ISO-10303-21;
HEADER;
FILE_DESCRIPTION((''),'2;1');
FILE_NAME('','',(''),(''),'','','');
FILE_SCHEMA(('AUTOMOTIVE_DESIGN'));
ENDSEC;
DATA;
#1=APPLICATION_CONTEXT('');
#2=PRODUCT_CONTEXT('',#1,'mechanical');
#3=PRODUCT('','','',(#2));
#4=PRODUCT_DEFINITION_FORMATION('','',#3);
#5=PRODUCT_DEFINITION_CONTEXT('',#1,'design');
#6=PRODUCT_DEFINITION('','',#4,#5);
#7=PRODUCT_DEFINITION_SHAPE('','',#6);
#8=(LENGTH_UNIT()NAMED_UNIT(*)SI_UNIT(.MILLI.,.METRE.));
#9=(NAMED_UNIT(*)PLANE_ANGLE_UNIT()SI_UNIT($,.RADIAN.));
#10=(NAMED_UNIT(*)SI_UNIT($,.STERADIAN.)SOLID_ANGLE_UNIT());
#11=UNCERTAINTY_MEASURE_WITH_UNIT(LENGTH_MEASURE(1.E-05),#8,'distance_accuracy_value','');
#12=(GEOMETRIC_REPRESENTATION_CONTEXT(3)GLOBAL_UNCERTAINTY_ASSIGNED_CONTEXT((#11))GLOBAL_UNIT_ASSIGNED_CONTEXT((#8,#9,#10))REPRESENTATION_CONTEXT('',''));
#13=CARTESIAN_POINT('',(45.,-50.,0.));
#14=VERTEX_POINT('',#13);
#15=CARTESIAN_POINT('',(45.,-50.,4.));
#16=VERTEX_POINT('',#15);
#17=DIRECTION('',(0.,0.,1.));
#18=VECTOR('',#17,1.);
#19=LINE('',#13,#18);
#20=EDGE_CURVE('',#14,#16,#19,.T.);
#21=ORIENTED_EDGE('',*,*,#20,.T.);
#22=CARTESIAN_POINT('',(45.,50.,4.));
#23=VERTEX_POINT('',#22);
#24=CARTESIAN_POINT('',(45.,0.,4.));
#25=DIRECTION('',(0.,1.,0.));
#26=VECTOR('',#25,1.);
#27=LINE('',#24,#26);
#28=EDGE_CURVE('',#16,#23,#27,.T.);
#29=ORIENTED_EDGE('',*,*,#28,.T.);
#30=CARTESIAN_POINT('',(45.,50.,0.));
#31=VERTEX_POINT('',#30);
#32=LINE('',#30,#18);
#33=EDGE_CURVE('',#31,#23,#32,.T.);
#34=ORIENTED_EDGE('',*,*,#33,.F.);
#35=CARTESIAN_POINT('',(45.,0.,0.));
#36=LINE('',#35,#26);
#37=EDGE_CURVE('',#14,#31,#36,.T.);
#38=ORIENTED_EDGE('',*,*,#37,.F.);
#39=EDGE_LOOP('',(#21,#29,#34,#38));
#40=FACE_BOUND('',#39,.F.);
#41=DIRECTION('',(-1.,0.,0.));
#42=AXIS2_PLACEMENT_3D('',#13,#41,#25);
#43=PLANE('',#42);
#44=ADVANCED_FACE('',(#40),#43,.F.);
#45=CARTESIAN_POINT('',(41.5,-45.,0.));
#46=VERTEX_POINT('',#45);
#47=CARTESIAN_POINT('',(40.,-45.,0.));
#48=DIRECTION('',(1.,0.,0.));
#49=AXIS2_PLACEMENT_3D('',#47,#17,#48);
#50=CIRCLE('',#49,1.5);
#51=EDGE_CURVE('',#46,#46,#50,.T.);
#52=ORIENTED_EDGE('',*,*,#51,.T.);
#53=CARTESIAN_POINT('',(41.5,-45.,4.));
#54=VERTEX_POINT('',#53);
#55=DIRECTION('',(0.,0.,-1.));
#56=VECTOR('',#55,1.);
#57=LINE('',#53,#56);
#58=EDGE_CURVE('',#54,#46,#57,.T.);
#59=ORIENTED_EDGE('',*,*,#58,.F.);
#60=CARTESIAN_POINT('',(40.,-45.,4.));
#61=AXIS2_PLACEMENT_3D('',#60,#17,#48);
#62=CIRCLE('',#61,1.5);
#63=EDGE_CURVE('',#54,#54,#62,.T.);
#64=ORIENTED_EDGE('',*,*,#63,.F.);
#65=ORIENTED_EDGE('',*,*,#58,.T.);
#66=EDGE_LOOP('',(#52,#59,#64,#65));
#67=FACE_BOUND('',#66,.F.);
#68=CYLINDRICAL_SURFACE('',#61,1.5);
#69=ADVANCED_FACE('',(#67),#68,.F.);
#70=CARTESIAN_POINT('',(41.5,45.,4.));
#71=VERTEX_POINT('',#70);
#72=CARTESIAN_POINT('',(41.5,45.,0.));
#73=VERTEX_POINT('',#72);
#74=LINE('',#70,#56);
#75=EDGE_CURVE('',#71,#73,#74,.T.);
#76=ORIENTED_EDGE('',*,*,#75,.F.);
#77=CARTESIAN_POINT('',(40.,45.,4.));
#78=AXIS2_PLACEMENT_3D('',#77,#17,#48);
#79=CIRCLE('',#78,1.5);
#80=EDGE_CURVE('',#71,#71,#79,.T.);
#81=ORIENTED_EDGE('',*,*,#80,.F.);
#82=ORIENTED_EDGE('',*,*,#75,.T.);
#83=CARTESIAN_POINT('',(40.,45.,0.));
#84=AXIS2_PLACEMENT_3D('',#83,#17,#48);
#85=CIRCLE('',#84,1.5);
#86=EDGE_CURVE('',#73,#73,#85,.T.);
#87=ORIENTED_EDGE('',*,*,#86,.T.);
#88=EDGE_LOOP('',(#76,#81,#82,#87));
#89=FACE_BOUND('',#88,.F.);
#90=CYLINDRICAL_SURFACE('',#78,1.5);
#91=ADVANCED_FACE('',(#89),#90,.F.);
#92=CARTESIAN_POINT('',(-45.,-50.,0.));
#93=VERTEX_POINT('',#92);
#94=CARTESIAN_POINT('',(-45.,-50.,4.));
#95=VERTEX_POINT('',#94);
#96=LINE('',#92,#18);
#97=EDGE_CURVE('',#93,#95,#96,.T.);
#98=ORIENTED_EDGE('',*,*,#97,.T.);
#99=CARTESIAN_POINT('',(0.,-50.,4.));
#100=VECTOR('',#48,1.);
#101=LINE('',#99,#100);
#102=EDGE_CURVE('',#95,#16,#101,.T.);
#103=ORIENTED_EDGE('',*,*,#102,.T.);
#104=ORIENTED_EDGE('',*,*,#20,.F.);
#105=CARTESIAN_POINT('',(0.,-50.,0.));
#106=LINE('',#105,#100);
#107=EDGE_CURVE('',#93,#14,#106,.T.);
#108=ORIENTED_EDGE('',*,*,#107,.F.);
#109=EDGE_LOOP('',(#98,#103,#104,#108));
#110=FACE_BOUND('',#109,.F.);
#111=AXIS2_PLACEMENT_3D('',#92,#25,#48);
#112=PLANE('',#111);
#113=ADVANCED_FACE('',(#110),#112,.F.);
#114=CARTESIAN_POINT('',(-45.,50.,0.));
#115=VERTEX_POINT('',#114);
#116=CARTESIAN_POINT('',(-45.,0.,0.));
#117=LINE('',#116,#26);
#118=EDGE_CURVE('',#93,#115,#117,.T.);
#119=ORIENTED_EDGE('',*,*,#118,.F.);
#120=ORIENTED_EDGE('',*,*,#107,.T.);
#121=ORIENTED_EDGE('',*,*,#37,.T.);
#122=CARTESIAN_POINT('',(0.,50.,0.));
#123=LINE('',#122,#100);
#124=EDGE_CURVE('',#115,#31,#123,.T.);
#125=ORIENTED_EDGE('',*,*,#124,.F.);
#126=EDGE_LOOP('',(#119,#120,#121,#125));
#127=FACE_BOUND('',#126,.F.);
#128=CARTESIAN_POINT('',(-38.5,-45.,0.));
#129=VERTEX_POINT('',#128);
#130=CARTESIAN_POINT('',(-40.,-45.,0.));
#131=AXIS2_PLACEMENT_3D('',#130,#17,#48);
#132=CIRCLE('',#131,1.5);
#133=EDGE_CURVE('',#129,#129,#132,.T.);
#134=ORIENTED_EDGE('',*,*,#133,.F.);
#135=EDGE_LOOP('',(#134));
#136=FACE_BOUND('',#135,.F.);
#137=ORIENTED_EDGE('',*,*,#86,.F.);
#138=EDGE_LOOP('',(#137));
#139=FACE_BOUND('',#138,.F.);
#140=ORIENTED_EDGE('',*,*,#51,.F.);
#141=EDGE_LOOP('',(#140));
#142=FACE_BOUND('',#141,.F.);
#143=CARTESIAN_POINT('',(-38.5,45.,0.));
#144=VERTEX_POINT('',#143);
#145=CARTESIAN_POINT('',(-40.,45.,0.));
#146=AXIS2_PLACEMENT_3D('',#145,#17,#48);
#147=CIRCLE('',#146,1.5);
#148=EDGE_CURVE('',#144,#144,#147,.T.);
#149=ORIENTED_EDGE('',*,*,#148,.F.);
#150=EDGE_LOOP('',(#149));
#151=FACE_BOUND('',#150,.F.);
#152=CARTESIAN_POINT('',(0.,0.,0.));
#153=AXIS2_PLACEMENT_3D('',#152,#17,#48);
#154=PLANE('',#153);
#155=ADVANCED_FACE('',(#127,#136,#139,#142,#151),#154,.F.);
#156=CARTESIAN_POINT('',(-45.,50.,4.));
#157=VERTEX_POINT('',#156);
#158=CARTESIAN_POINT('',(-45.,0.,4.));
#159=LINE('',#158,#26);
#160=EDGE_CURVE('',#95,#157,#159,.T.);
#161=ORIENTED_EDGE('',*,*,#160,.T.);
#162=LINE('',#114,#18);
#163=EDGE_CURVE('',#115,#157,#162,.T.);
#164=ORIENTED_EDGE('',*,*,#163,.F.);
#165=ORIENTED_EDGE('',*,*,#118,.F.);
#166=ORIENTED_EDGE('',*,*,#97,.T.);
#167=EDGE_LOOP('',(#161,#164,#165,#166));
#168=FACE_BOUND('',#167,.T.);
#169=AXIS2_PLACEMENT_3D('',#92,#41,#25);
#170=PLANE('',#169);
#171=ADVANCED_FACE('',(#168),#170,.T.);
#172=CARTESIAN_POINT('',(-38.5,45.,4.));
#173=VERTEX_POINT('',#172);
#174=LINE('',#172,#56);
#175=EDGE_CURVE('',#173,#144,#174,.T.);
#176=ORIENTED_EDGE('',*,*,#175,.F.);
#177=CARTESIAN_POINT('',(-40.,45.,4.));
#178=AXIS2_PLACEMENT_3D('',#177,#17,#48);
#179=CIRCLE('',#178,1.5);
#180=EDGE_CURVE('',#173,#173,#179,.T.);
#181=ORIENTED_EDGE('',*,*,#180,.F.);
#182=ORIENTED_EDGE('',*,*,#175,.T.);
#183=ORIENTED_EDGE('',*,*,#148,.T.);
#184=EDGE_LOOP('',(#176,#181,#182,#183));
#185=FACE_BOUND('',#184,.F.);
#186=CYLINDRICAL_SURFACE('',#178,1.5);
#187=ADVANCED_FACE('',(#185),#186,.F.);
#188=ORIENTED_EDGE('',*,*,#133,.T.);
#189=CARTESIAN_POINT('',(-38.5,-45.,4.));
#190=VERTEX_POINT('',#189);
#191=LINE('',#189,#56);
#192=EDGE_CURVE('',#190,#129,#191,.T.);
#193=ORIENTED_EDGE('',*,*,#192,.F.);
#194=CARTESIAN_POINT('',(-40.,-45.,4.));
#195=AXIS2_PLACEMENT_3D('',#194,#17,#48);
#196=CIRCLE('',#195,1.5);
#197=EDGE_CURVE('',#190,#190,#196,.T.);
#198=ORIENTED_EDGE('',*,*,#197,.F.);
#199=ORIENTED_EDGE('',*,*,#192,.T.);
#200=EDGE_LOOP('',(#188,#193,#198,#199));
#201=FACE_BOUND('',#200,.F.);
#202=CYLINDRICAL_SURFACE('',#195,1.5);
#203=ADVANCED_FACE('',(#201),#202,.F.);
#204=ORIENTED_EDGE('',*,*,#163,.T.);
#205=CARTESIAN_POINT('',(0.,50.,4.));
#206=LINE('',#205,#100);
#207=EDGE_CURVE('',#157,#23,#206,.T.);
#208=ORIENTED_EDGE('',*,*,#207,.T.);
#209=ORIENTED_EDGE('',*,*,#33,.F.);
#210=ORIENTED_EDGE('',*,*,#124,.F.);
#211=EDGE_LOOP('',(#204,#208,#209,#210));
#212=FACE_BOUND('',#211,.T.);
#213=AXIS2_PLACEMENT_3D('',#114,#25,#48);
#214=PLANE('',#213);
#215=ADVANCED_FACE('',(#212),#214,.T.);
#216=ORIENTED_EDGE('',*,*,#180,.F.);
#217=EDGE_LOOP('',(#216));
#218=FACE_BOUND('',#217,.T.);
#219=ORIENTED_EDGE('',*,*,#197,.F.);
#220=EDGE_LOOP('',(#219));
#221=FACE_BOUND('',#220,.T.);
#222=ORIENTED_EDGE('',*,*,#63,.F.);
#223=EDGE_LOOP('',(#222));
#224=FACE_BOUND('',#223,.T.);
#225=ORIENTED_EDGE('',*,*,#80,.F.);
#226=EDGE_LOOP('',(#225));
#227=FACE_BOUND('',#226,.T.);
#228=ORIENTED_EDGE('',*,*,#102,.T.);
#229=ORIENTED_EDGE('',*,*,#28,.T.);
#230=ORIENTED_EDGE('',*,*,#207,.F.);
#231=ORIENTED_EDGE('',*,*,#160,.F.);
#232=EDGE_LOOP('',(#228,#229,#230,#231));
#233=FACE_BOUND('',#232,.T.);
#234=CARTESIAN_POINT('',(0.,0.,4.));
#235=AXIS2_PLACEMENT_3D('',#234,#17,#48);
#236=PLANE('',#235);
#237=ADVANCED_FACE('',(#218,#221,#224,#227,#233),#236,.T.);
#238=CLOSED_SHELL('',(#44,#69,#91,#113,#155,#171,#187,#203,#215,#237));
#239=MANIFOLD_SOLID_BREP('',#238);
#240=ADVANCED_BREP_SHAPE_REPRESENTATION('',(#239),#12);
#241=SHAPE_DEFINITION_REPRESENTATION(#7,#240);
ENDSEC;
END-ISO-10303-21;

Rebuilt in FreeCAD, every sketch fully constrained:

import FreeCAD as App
import Part
import Sketcher

doc = App.newDocument("Part")
body = doc.addObject("PartDesign::Body", "Body")

sketch1 = doc.addObject("Sketcher::SketchObject", "Sketch")
body.addObject(sketch1)
sketch1.AttachmentSupport = (doc.XY_Plane, [""])
sketch1.MapMode = "FlatFace"
sketch1.addGeometry(Part.LineSegment(App.Vector(-45, 50, 0), App.Vector(-45, -50, 0)), False)
sketch1.addGeometry(Part.LineSegment(App.Vector(-45, -50, 0), App.Vector(45, -50, 0)), False)
sketch1.addGeometry(Part.LineSegment(App.Vector(45, -50, 0), App.Vector(45, 50, 0)), False)
sketch1.addGeometry(Part.LineSegment(App.Vector(45, 50, 0), App.Vector(-45, 50, 0)), False)
sketch1.addConstraint(Sketcher.Constraint("Coincident", 0, 2, 1, 1))
sketch1.addConstraint(Sketcher.Constraint("Coincident", 1, 2, 2, 1))
sketch1.addConstraint(Sketcher.Constraint("Coincident", 2, 2, 3, 1))
sketch1.addConstraint(Sketcher.Constraint("Coincident", 3, 2, 0, 1))
sketch1.addConstraint(Sketcher.Constraint("Vertical", 0))
sketch1.addConstraint(Sketcher.Constraint("Horizontal", 1))
sketch1.addConstraint(Sketcher.Constraint("Vertical", 2))
sketch1.addConstraint(Sketcher.Constraint("Horizontal", 3))
sketch1.addConstraint(Sketcher.Constraint("Symmetric", 0, 2, 2, 2, -1, 1))
sketch1.addConstraint(Sketcher.Constraint("DistanceX", 1, 1, 1, 2, 90.0))
sketch1.addConstraint(Sketcher.Constraint("DistanceY", 0, 2, 0, 1, 100.0))
pad1 = doc.addObject("PartDesign::Pad", "Pad")
body.addObject(pad1)
pad1.Profile = sketch1
pad1.Length = 4

sketch2 = doc.addObject("Sketcher::SketchObject", "Sketch001")
body.addObject(sketch2)
sketch2.AttachmentSupport = (doc.XY_Plane, [""])
sketch2.MapMode = "FlatFace"
sketch2.AttachmentOffset = App.Placement(App.Vector(0, 0, 4), App.Rotation())
sketch2.addGeometry(Part.Circle(App.Vector(-40, 45, 0), App.Vector(0, 0, 1), 1.5), False)
sketch2.addGeometry(Part.Circle(App.Vector(40, 45, 0), App.Vector(0, 0, 1), 1.5), False)
sketch2.addGeometry(Part.Circle(App.Vector(-40, -45, 0), App.Vector(0, 0, 1), 1.5), False)
sketch2.addGeometry(Part.Circle(App.Vector(40, -45, 0), App.Vector(0, 0, 1), 1.5), False)
sketch2.addConstraint(Sketcher.Constraint("Equal", 0, 1))
sketch2.addConstraint(Sketcher.Constraint("Equal", 1, 2))
sketch2.addConstraint(Sketcher.Constraint("Equal", 2, 3))
sketch2.addConstraint(Sketcher.Constraint("Symmetric", 1, 3, 2, 3, -1, 1))
sketch2.addConstraint(Sketcher.Constraint("Symmetric", 0, 3, 3, 3, -1, 1))
sketch2.addConstraint(Sketcher.Constraint("Symmetric", 0, 3, 1, 3, -2))
sketch2.addConstraint(Sketcher.Constraint("Diameter", 0, 3.0))
sketch2.addConstraint(Sketcher.Constraint("DistanceX", 0, 3, -1, 1, 40.0))
sketch2.addConstraint(Sketcher.Constraint("DistanceY", -1, 1, 0, 3, 45.0))
pocket1 = doc.addObject("PartDesign::Pocket", "Pocket")
body.addObject(pocket1)
pocket1.Profile = sketch2
pocket1.Length = 4

doc.recompute()
